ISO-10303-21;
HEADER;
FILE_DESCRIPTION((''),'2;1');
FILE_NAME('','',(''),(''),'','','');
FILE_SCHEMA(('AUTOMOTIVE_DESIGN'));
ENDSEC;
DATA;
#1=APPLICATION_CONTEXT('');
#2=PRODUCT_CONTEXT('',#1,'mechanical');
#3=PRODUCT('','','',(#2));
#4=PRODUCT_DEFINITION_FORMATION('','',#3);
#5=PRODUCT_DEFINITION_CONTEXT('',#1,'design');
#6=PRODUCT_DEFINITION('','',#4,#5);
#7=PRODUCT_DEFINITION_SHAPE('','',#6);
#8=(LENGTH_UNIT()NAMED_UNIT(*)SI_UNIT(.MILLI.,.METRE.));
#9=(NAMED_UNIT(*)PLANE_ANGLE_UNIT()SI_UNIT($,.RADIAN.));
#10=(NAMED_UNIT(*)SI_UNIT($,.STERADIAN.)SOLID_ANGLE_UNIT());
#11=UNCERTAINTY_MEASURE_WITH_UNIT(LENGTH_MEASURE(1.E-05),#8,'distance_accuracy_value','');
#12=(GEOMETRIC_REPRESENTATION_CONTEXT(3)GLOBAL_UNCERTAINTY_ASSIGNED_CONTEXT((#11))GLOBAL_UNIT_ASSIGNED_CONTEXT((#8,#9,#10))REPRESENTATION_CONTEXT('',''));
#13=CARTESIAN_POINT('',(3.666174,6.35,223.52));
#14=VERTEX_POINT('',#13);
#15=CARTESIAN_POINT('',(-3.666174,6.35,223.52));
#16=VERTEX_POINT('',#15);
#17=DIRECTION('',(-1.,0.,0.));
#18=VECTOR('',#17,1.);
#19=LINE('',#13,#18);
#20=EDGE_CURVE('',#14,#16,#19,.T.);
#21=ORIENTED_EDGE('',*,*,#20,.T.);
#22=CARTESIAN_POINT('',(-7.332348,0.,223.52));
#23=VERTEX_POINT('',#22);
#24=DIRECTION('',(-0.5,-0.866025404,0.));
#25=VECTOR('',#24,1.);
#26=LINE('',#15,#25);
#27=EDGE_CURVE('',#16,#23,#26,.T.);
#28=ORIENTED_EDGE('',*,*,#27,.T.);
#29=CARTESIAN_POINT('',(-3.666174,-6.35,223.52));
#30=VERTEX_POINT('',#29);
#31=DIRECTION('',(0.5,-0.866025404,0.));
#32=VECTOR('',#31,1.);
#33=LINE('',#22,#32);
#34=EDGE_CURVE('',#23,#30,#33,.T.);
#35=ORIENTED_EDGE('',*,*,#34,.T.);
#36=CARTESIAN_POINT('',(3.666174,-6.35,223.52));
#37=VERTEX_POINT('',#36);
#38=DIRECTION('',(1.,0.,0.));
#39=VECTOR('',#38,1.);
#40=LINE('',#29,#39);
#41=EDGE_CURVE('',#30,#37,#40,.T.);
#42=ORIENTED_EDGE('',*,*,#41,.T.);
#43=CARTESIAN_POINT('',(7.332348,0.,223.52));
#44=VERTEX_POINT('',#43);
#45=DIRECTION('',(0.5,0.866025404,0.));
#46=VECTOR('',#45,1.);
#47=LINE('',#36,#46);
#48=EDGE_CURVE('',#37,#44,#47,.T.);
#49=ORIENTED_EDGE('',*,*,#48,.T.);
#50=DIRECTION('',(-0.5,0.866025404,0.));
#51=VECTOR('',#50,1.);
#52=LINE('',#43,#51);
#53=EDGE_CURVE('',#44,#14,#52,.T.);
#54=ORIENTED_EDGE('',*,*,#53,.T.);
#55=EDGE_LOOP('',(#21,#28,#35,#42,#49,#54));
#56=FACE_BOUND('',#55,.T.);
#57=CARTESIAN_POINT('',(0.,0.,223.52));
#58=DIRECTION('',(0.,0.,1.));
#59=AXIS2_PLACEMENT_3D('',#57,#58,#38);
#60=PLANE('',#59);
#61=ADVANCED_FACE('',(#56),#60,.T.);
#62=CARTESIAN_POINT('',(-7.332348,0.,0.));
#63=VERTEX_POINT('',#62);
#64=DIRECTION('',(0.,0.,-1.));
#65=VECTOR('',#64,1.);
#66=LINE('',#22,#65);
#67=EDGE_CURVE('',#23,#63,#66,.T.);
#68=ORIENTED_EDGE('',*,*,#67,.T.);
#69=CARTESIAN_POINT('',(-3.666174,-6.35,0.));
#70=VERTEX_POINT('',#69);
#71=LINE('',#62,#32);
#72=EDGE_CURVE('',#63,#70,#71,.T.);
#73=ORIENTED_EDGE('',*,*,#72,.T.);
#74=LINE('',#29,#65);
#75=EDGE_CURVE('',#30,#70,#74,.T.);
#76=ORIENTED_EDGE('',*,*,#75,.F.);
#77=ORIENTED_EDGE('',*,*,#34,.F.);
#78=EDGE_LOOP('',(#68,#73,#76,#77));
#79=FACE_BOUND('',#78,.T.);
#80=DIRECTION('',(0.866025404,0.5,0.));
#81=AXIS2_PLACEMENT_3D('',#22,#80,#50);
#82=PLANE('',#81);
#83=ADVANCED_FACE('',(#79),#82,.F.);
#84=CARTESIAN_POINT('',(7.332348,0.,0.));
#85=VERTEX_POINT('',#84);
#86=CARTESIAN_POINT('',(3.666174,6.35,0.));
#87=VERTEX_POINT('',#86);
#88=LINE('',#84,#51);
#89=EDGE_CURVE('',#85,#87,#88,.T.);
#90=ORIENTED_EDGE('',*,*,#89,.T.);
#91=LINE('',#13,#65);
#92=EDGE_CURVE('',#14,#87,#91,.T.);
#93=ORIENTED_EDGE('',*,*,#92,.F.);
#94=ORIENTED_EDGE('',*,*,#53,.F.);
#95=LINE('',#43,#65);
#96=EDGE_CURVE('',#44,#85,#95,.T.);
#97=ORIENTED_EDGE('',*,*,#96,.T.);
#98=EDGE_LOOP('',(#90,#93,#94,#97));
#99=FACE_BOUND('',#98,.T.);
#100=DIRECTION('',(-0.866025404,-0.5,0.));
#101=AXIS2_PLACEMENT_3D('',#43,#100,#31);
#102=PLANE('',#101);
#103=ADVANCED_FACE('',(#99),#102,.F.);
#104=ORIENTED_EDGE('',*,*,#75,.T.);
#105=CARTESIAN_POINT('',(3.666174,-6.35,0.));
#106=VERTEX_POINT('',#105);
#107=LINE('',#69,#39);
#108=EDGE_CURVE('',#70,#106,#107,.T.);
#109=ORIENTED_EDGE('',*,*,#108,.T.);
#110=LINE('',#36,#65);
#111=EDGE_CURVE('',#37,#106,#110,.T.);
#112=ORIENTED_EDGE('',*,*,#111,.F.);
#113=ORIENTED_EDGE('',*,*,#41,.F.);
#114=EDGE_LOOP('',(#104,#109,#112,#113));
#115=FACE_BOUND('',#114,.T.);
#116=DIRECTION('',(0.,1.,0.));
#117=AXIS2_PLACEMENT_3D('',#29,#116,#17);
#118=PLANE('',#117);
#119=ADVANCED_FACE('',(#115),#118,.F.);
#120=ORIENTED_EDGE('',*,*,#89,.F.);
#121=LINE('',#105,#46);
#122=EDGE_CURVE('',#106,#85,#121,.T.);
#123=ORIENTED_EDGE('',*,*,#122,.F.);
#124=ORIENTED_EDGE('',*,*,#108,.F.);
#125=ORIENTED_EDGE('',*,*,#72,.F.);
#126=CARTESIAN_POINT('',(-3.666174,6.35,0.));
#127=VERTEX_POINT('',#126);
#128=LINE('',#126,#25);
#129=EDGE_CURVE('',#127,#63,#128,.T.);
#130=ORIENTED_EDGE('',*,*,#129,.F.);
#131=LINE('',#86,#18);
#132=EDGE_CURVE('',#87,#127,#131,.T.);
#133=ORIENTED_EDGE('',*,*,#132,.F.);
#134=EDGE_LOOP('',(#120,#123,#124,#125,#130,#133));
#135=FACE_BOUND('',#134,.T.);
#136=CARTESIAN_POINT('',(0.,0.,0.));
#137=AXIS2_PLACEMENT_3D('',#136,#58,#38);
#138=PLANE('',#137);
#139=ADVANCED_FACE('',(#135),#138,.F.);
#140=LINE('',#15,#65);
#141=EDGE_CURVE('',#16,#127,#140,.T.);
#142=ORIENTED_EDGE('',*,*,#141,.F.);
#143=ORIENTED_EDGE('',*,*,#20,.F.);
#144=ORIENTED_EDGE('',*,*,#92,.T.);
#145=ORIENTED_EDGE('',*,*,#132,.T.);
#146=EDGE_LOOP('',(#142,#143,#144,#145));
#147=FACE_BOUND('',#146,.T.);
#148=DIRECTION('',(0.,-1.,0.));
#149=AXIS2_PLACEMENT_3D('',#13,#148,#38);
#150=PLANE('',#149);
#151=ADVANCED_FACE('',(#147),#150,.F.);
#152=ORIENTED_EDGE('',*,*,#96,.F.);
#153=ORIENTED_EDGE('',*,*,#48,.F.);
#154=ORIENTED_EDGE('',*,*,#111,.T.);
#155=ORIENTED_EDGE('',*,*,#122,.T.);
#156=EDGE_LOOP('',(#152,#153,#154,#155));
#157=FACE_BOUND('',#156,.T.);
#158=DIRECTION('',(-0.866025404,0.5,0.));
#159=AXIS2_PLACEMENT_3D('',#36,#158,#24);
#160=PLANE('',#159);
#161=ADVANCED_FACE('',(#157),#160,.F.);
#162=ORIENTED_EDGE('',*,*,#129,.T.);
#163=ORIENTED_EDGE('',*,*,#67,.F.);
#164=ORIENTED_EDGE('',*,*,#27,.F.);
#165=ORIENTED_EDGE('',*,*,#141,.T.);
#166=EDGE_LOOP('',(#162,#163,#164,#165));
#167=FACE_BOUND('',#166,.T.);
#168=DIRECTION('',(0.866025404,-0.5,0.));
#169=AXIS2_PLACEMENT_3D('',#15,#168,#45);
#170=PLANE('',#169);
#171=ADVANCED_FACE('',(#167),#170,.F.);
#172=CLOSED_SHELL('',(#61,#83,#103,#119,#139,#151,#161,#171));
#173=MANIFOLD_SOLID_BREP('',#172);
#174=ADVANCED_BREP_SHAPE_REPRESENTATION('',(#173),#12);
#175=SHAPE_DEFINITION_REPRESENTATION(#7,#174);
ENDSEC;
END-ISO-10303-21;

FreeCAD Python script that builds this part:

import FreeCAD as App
import Part
import Sketcher
from FreeCAD import Vector
Q = App.Units.Quantity

doc = App.newDocument("Part")
body = doc.addObject("PartDesign::Body", "Body")

# Sketch on XY plane
sketch1 = body.newObject("Sketcher::SketchObject", "Sketch")
sketch1.AttachmentSupport = (doc.getObject("XY_Plane"), [""])
sketch1.MapMode = "FlatFace"
sketch1.addGeometry(Part.LineSegment(Vector(-7.332348, 0, 0), Vector(-3.666174, -6.35, 0)), False)
sketch1.addGeometry(Part.LineSegment(Vector(-3.666174, -6.35, 0), Vector(3.666174, -6.35, 0)), False)
sketch1.addGeometry(Part.LineSegment(Vector(3.666174, -6.35, 0), Vector(7.332348, 0, 0)), False)
sketch1.addGeometry(Part.LineSegment(Vector(7.332348, 0, 0), Vector(3.666174, 6.35, 0)), False)
sketch1.addGeometry(Part.LineSegment(Vector(3.666174, 6.35, 0), Vector(-3.666174, 6.35, 0)), False)
sketch1.addGeometry(Part.LineSegment(Vector(-3.666174, 6.35, 0), Vector(-7.332348, 0, 0)), False)
sketch1.addConstraint(Sketcher.Constraint("Coincident", 0, 2, 1, 1))
sketch1.addConstraint(Sketcher.Constraint("Coincident", 1, 2, 2, 1))
sketch1.addConstraint(Sketcher.Constraint("Coincident", 2, 2, 3, 1))
sketch1.addConstraint(Sketcher.Constraint("Coincident", 3, 2, 4, 1))
sketch1.addConstraint(Sketcher.Constraint("Coincident", 4, 2, 5, 1))
sketch1.addConstraint(Sketcher.Constraint("Coincident", 5, 2, 0, 1))
sketch1.addConstraint(Sketcher.Constraint("Horizontal", 1))
sketch1.addConstraint(Sketcher.Constraint("Horizontal", 4))
sketch1.addConstraint(Sketcher.Constraint("Symmetric", 0, 2, 3, 2, -1, 1))
sketch1.addConstraint(Sketcher.Constraint("Symmetric", 2, 2, 5, 2, -1, 1))
sketch1.addConstraint(Sketcher.Constraint("PointOnObject", 2, 2, -1))
sketch1.addConstraint(Sketcher.Constraint("Parallel", 2, 5))
sketch1.addConstraint(Sketcher.Constraint("Vertical", 1, 2, 3, 2))
sketch1.addConstraint(Sketcher.Constraint("Angle", 0, Q("-60 deg")))
sketch1.addConstraint(Sketcher.Constraint("DistanceY", 1, 2, 3, 2, Q("0.5 in")))
sketch1.addConstraint(Sketcher.Constraint("DistanceX", 1, 1, 1, 2, 7.332348))
pad1 = body.newObject("PartDesign::Pad", "Pad")
pad1.Profile = sketch1
pad1.Length = Q("8.8 in")

doc.recompute()
